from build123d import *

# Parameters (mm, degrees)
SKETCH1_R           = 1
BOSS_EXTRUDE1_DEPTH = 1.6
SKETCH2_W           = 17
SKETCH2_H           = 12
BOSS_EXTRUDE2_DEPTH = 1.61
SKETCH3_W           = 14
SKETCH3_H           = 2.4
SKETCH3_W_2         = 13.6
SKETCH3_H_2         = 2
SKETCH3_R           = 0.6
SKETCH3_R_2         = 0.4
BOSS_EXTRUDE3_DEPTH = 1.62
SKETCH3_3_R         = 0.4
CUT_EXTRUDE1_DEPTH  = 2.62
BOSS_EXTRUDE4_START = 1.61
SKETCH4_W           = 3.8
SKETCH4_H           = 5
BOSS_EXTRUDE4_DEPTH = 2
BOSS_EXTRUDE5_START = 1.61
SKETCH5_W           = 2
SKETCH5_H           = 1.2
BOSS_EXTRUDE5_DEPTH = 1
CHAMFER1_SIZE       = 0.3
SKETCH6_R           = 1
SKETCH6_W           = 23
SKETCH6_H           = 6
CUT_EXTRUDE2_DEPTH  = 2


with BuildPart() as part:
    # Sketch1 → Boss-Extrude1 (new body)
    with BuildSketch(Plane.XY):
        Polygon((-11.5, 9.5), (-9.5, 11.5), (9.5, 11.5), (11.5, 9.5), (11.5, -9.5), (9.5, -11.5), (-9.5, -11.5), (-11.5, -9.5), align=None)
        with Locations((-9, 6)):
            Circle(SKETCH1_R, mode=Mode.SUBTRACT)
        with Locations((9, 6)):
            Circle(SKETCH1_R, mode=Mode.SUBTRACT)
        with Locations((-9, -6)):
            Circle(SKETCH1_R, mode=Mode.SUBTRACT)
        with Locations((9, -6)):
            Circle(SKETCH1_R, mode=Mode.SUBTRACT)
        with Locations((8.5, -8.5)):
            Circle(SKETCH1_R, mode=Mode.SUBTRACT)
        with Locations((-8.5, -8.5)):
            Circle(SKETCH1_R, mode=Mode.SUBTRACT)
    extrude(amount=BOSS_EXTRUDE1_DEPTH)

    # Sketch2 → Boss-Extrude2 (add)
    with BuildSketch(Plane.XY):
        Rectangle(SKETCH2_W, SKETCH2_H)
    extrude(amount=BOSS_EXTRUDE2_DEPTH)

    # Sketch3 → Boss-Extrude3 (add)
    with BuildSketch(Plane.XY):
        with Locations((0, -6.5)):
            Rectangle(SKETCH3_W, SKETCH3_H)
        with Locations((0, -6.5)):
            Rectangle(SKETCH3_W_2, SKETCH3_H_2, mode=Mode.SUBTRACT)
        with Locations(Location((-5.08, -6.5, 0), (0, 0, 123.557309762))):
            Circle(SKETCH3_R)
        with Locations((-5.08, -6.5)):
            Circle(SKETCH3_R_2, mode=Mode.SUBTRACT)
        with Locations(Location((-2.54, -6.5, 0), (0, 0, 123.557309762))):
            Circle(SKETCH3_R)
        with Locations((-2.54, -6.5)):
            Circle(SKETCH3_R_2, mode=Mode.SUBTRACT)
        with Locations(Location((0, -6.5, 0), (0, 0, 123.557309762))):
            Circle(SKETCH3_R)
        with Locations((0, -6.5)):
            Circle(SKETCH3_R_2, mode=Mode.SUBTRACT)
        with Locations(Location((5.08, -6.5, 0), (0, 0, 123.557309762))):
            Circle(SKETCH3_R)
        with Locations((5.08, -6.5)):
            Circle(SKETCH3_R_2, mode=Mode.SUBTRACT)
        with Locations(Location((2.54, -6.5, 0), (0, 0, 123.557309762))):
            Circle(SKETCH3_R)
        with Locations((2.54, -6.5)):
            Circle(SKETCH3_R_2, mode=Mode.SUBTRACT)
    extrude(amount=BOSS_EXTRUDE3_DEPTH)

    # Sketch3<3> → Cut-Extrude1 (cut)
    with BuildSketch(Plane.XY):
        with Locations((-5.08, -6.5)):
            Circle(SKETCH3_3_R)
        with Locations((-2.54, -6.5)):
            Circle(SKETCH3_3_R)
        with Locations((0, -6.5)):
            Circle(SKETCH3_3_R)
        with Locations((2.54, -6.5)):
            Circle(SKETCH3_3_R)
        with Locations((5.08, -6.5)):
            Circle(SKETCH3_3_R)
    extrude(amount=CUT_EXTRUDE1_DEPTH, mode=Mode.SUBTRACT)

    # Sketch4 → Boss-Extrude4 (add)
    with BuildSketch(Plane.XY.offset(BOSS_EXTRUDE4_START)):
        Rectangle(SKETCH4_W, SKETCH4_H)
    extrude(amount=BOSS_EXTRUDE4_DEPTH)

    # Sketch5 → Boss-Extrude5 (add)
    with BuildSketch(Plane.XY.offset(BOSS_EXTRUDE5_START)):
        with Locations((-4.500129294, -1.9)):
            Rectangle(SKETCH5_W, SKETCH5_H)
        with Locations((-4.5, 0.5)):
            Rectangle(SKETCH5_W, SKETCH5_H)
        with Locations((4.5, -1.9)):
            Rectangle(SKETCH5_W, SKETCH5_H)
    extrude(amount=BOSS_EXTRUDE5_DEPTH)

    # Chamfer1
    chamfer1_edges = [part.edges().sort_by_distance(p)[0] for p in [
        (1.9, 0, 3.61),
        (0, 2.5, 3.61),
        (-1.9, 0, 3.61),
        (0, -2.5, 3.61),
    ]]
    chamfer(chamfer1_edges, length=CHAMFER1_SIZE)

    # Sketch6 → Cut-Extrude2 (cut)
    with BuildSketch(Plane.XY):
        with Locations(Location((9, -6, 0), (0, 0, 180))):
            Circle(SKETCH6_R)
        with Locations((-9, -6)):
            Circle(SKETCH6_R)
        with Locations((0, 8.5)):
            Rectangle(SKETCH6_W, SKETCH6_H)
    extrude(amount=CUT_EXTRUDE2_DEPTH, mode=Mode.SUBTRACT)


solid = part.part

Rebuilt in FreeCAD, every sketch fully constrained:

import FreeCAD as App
import Part
import Sketcher
from FreeCAD import Vector
Q = App.Units.Quantity


def edges_at(feature, points):
    """Names of the edges that pass closest to the given points."""
    edges = feature.Shape.Edges
    near = lambda p: min(range(len(edges)), key=lambda i: edges[i].distToShape(Part.Vertex(*p))[0])
    return sorted({f"Edge{near(p) + 1}" for p in points})

doc = App.newDocument("Part")
body = doc.addObject("PartDesign::Body", "Body")

# Sketch on XY plane
sketch1 = body.newObject("Sketcher::SketchObject", "Sketch")
sketch1.AttachmentSupport = (doc.getObject("XY_Plane"), [""])
sketch1.MapMode = "FlatFace"
sketch1.addGeometry(Part.LineSegment(Vector(-9.5, 11.5, 0), Vector(-11.5, 9.5, 0)), False)
sketch1.addGeometry(Part.LineSegment(Vector(-11.5, 9.5, 0), Vector(-11.5, -9.5, 0)), False)
sketch1.addGeometry(Part.LineSegment(Vector(-11.5, -9.5, 0), Vector(-9.5, -11.5, 0)), False)
sketch1.addGeometry(Part.LineSegment(Vector(-9.5, -11.5, 0), Vector(9.5, -11.5, 0)), False)
sketch1.addGeometry(Part.LineSegment(Vector(9.5, -11.5, 0), Vector(11.5, -9.5, 0)), False)
sketch1.addGeometry(Part.LineSegment(Vector(11.5, -9.5, 0), Vector(11.5, 9.5, 0)), False)
sketch1.addGeometry(Part.LineSegment(Vector(11.5, 9.5, 0), Vector(9.5, 11.5, 0)), False)
sketch1.addGeometry(Part.LineSegment(Vector(9.5, 11.5, 0), Vector(-9.5, 11.5, 0)), False)
sketch1.addGeometry(Part.Circle(Vector(8.5, -8.5, 0), Vector(0, 0, 1), 1), False)
sketch1.addGeometry(Part.Circle(Vector(9, -6, 0), Vector(0, 0, 1), 1), False)
sketch1.addGeometry(Part.Circle(Vector(-8.5, -8.5, 0), Vector(0, 0, 1), 1), False)
sketch1.addGeometry(Part.Circle(Vector(-9, -6, 0), Vector(0, 0, 1), 1), False)
sketch1.addGeometry(Part.Circle(Vector(9, 6, 0), Vector(0, 0, 1), 1), False)
sketch1.addGeometry(Part.Circle(Vector(-9, 6, 0), Vector(0, 0, 1), 1), False)
sketch1.addConstraint(Sketcher.Constraint("Coincident", 0, 2, 1, 1))
sketch1.addConstraint(Sketcher.Constraint("Coincident", 1, 2, 2, 1))
sketch1.addConstraint(Sketcher.Constraint("Coincident", 2, 2, 3, 1))
sketch1.addConstraint(Sketcher.Constraint("Coincident", 3, 2, 4, 1))
sketch1.addConstraint(Sketcher.Constraint("Coincident", 4, 2, 5, 1))
sketch1.addConstraint(Sketcher.Constraint("Coincident", 5, 2, 6, 1))
sketch1.addConstraint(Sketcher.Constraint("Coincident", 6, 2, 7, 1))
sketch1.addConstraint(Sketcher.Constraint("Coincident", 7, 2, 0, 1))
sketch1.addConstraint(Sketcher.Constraint("Vertical", 1))
sketch1.addConstraint(Sketcher.Constraint("Horizontal", 3))
sketch1.addConstraint(Sketcher.Constraint("Vertical", 5))
sketch1.addConstraint(Sketcher.Constraint("Horizontal", 7))
sketch1.addConstraint(Sketcher.Constraint("Equal", 8, 9))
sketch1.addConstraint(Sketcher.Constraint("Equal", 9, 10))
sketch1.addConstraint(Sketcher.Constraint("Equal", 10, 11))
sketch1.addConstraint(Sketcher.Constraint("Equal", 11, 12))
sketch1.addConstraint(Sketcher.Constraint("Equal", 12, 13))
sketch1.addConstraint(Sketcher.Constraint("Symmetric", 11, 3, 12, 3, -1, 1))
sketch1.addConstraint(Sketcher.Constraint("Symmetric", 9, 3, 13, 3, -1, 1))
sketch1.addConstraint(Sketcher.Constraint("Symmetric", 0, 2, 4, 2, -1, 1))
sketch1.addConstraint(Sketcher.Constraint("Symmetric", 2, 2, 6, 2, -1, 1))
sketch1.addConstraint(Sketcher.Constraint("Symmetric", 8, 3, 10, 3, -2))
sketch1.addConstraint(Sketcher.Constraint("Symmetric", 9, 3, 11, 3, -2))
sketch1.addConstraint(Sketcher.Constraint("Perpendicular", 0, 2))
sketch1.addConstraint(Sketcher.Constraint("Perpendicular", 2, 4))
sketch1.addConstraint(Sketcher.Constraint("Perpendicular", 4, 6))
sketch1.addConstraint(Sketcher.Constraint("Horizontal", 1, 2, 4, 2))
sketch1.addConstraint(Sketcher.Constraint("Vertical", 3, 2, 6, 2))
sketch1.addConstraint(Sketcher.Constraint("Equal", 7, 1))
sketch1.addConstraint(Sketcher.Constraint("Diameter", 8, Q("2 mm")))
sketch1.addConstraint(Sketcher.Constraint("DistanceX", 3, 1, 3, 2, Q("19 mm")))
sketch1.addConstraint(Sketcher.Constraint("DistanceX", -1, 1, 9, 3, Q("9 mm")))
sketch1.addConstraint(Sketcher.Constraint("DistanceY", 9, 3, -1, 1, Q("6 mm")))
sketch1.addConstraint(Sketcher.Constraint("DistanceX", 10, 3, 8, 3, Q("17 mm")))
sketch1.addConstraint(Sketcher.Constraint("DistanceX", 0, 2, 10, 3, Q("3 mm")))
sketch1.addConstraint(Sketcher.Constraint("DistanceY", 10, 3, 0, 2, Q("18 mm")))
pad1 = body.newObject("PartDesign::Pad", "Pad")
pad1.Profile = sketch1
pad1.Length = 1.6

# Sketch on XY plane
sketch2 = body.newObject("Sketcher::SketchObject", "Sketch001")
sketch2.AttachmentSupport = (doc.getObject("XY_Plane"), [""])
sketch2.MapMode = "FlatFace"
sketch2.addGeometry(Part.LineSegment(Vector(-8, 6, 0), Vector(-8, -6, 0)), False)
sketch2.addGeometry(Part.LineSegment(Vector(-8, -6, 0), Vector(8, -6, 0)), False)
sketch2.addGeometry(Part.LineSegment(Vector(8, -6, 0), Vector(8, 6, 0)), False)
sketch2.addGeometry(Part.LineSegment(Vector(8, 6, 0), Vector(-8, 6, 0)), False)
sketch2.addConstraint(Sketcher.Constraint("Coincident", 0, 2, 1, 1))
sketch2.addConstraint(Sketcher.Constraint("Coincident", 1, 2, 2, 1))
sketch2.addConstraint(Sketcher.Constraint("Coincident", 2, 2, 3, 1))
sketch2.addConstraint(Sketcher.Constraint("Coincident", 3, 2, 0, 1))
sketch2.addConstraint(Sketcher.Constraint("Vertical", 0))
sketch2.addConstraint(Sketcher.Constraint("Horizontal", 1))
sketch2.addConstraint(Sketcher.Constraint("Vertical", 2))
sketch2.addConstraint(Sketcher.Constraint("Horizontal", 3))
sketch2.addConstraint(Sketcher.Constraint("Symmetric", 0, 2, 2, 2, -1, 1))
sketch2.addConstraint(Sketcher.Constraint("DistanceX", 1, 1, 1, 2, Q("17 mm")))
sketch2.addConstraint(Sketcher.Constraint("DistanceY", 0, 2, 0, 1, Q("12 mm")))
pad2 = body.newObject("PartDesign::Pad", "Pad001")
pad2.Profile = sketch2
pad2.Length = 1.61

# Sketch on XY plane
sketch3 = body.newObject("Sketcher::SketchObject", "Sketch002")
sketch3.AttachmentSupport = (doc.getObject("XY_Plane"), [""])
sketch3.MapMode = "FlatFace"
sketch3.addGeometry(Part.LineSegment(Vector(-7, -5.3, 0), Vector(-7, -7.7, 0)), False)
sketch3.addGeometry(Part.LineSegment(Vector(-7, -7.7, 0), Vector(7, -7.7, 0)), False)
sketch3.addGeometry(Part.LineSegment(Vector(7, -7.7, 0), Vector(7, -5.3, 0)), False)
sketch3.addGeometry(Part.LineSegment(Vector(7, -5.3, 0), Vector(-7, -5.3, 0)), False)
sketch3.addGeometry(Part.LineSegment(Vector(6.8, -7.5, 0), Vector(-6.8, -7.5, 0)), False)
sketch3.addGeometry(Part.LineSegment(Vector(-6.8, -7.5, 0), Vector(-6.8, -5.5, 0)), False)
sketch3.addGeometry(Part.LineSegment(Vector(-6.8, -5.5, 0), Vector(6.8, -5.5, 0)), False)
sketch3.addGeometry(Part.LineSegment(Vector(6.8, -5.5, 0), Vector(6.8, -7.5, 0)), False)
sketch3.addGeometry(Part.Circle(Vector(-5.08, -6.5, 0), Vector(0, 0, 1), 0.6), False)
sketch3.addGeometry(Part.Circle(Vector(-5.08, -6.5, 0), Vector(0, 0, 1), 0.4), False)
sketch3.addGeometry(Part.Circle(Vector(-2.54, -6.5, 0), Vector(0, 0, 1), 0.6), False)
sketch3.addGeometry(Part.Circle(Vector(-2.54, -6.5, 0), Vector(0, 0, 1), 0.4), False)
sketch3.addGeometry(Part.Circle(Vector(0, -6.5, 0), Vector(0, 0, 1), 0.6), False)
sketch3.addGeometry(Part.Circle(Vector(0, -6.5, 0), Vector(0, 0, 1), 0.4), False)
sketch3.addGeometry(Part.Circle(Vector(5.08, -6.5, 0), Vector(0, 0, 1), 0.6), False)
sketch3.addGeometry(Part.Circle(Vector(5.08, -6.5, 0), Vector(0, 0, 1), 0.4), False)
sketch3.addGeometry(Part.Circle(Vector(2.54, -6.5, 0), Vector(0, 0, 1), 0.6), False)
sketch3.addGeometry(Part.Circle(Vector(2.54, -6.5, 0), Vector(0, 0, 1), 0.4), False)
sketch3.addConstraint(Sketcher.Constraint("Coincident", 0, 2, 1, 1))
sketch3.addConstraint(Sketcher.Constraint("Coincident", 1, 2, 2, 1))
sketch3.addConstraint(Sketcher.Constraint("Coincident", 2, 2, 3, 1))
sketch3.addConstraint(Sketcher.Constraint("Coincident", 3, 2, 0, 1))
sketch3.addConstraint(Sketcher.Constraint("Coincident", 4, 2, 5, 1))
sketch3.addConstraint(Sketcher.Constraint("Coincident", 5, 2, 6, 1))
sketch3.addConstraint(Sketcher.Constraint("Coincident", 6, 2, 7, 1))
sketch3.addConstraint(Sketcher.Constraint("Coincident", 7, 2, 4, 1))
sketch3.addConstraint(Sketcher.Constraint("Vertical", 0))
sketch3.addConstraint(Sketcher.Constraint("Horizontal", 1))
sketch3.addConstraint(Sketcher.Constraint("Vertical", 2))
sketch3.addConstraint(Sketcher.Constraint("Horizontal", 3))
sketch3.addConstraint(Sketcher.Constraint("Horizontal", 4))
sketch3.addConstraint(Sketcher.Constraint("Vertical", 5))
sketch3.addConstraint(Sketcher.Constraint("Horizontal", 6))
sketch3.addConstraint(Sketcher.Constraint("Vertical", 7))
sketch3.addConstraint(Sketcher.Constraint("Coincident", 9, 3, 8, 3))
sketch3.addConstraint(Sketcher.Constraint("Coincident", 11, 3, 10, 3))
sketch3.addConstraint(Sketcher.Constraint("Coincident", 13, 3, 12, 3))
sketch3.addConstraint(Sketcher.Constraint("Coincident", 15, 3, 14, 3))
sketch3.addConstraint(Sketcher.Constraint("Coincident", 17, 3, 16, 3))
sketch3.addConstraint(Sketcher.Constraint("Equal", 8, 10))
sketch3.addConstraint(Sketcher.Constraint("Equal", 9, 11))
sketch3.addConstraint(Sketcher.Constraint("Equal", 10, 12))
sketch3.addConstraint(Sketcher.Constraint("Equal", 11, 13))
sketch3.addConstraint(Sketcher.Constraint("Equal", 12, 14))
sketch3.addConstraint(Sketcher.Constraint("Equal", 13, 15))
sketch3.addConstraint(Sketcher.Constraint("Equal", 14, 16))
sketch3.addConstraint(Sketcher.Constraint("Equal", 15, 17))
sketch3.addConstraint(Sketcher.Constraint("Symmetric", 8, 3, 14, 3, -2))
sketch3.addConstraint(Sketcher.Constraint("Symmetric", 10, 3, 16, 3, -2))
sketch3.addConstraint(Sketcher.Constraint("PointOnObject", 12, 3, -2))
sketch3.addConstraint(Sketcher.Constraint("Horizontal", 9, 3, 10, 3))
sketch3.addConstraint(Sketcher.Constraint("Horizontal", 11, 3, 12, 3))
sketch3.addConstraint(Sketcher.Constraint("Diameter", 8, Q("1.2 mm")))
sketch3.addConstraint(Sketcher.Constraint("Diameter", 9, Q("0.8 mm")))
sketch3.addConstraint(Sketcher.Constraint("DistanceX", 1, 1, 1, 2, Q("14 mm")))
sketch3.addConstraint(Sketcher.Constraint("DistanceY", 5, 1, 5, 2, Q("2 mm")))
sketch3.addConstraint(Sketcher.Constraint("DistanceX", 4, 2, 4, 1, Q("13.6 mm")))
sketch3.addConstraint(Sketcher.Constraint("DistanceY", 0, 2, 0, 1, Q("2.4 mm")))
sketch3.addConstraint(Sketcher.Constraint("DistanceX", 0, 2, -1, 1, Q("7 mm")))
sketch3.addConstraint(Sketcher.Constraint("DistanceY", 4, 2, 8, 3, Q("1 mm")))
sketch3.addConstraint(Sketcher.Constraint("DistanceY", 8, 3, -1, 1, Q("6.5 mm")))
sketch3.addConstraint(Sketcher.Constraint("DistanceY", 0, 2, -1, 1, Q("7.7 mm")))
sketch3.addConstraint(Sketcher.Constraint("DistanceX", 4, 2, -1, 1, Q("6.8 mm")))
sketch3.addConstraint(Sketcher.Constraint("DistanceX", 8, 3, -1, 1, Q("5.08 mm")))
sketch3.addConstraint(Sketcher.Constraint("DistanceX", 10, 3, -1, 1, Q("2.54 mm")))
pad3 = body.newObject("PartDesign::Pad", "Pad002")
pad3.Profile = sketch3
pad3.Length = 1.62

# Sketch on XY plane
sketch4 = body.newObject("Sketcher::SketchObject", "Sketch003")
sketch4.AttachmentSupport = (doc.getObject("XY_Plane"), [""])
sketch4.MapMode = "FlatFace"
sketch4.addGeometry(Part.Circle(Vector(-5.08, -6.5, 0), Vector(0, 0, 1), 0.4), False)
sketch4.addGeometry(Part.Circle(Vector(-2.54, -6.5, 0), Vector(0, 0, 1), 0.4), False)
sketch4.addGeometry(Part.Circle(Vector(0, -6.5, 0), Vector(0, 0, 1), 0.4), False)
sketch4.addGeometry(Part.Circle(Vector(2.54, -6.5, 0), Vector(0, 0, 1), 0.4), False)
sketch4.addGeometry(Part.Circle(Vector(5.08, -6.5, 0), Vector(0, 0, 1), 0.4), False)
sketch4.addConstraint(Sketcher.Constraint("Equal", 0, 1))
sketch4.addConstraint(Sketcher.Constraint("Equal", 1, 2))
sketch4.addConstraint(Sketcher.Constraint("Equal", 2, 3))
sketch4.addConstraint(Sketcher.Constraint("Equal", 3, 4))
sketch4.addConstraint(Sketcher.Constraint("Symmetric", 1, 3, 3, 3, -2))
sketch4.addConstraint(Sketcher.Constraint("Symmetric", 0, 3, 4, 3, -2))
sketch4.addConstraint(Sketcher.Constraint("PointOnObject", 2, 3, -2))
sketch4.addConstraint(Sketcher.Constraint("Horizontal", 0, 3, 1, 3))
sketch4.addConstraint(Sketcher.Constraint("Horizontal", 1, 3, 2, 3))
sketch4.addConstraint(Sketcher.Constraint("Diameter", 0, Q("0.8 mm")))
sketch4.addConstraint(Sketcher.Constraint("DistanceY", 0, 3, -1, 1, Q("6.5 mm")))
sketch4.addConstraint(Sketcher.Constraint("DistanceX", 0, 3, -1, 1, Q("5.08 mm")))
sketch4.addConstraint(Sketcher.Constraint("DistanceX", 1, 3, -1, 1, Q("2.54 mm")))
pocket1 = body.newObject("PartDesign::Pocket", "Pocket")
pocket1.Profile = sketch4
pocket1.Length = 2.62
pocket1.Reversed = True

# Sketch on XY plane
sketch5 = body.newObject("Sketcher::SketchObject", "Sketch004")
sketch5.AttachmentSupport = (doc.getObject("XY_Plane"), [""])
sketch5.MapMode = "FlatFace"
sketch5.AttachmentOffset = App.Placement(Vector(0, 0, 1.61), App.Rotation())
sketch5.addGeometry(Part.LineSegment(Vector(-1.9, 2.5, 0), Vector(-1.9, -2.5, 0)), False)
sketch5.addGeometry(Part.LineSegment(Vector(-1.9, -2.5, 0), Vector(1.9, -2.5, 0)), False)
sketch5.addGeometry(Part.LineSegment(Vector(1.9, -2.5, 0), Vector(1.9, 2.5, 0)), False)
sketch5.addGeometry(Part.LineSegment(Vector(1.9, 2.5, 0), Vector(-1.9, 2.5, 0)), False)
sketch5.addConstraint(Sketcher.Constraint("Coincident", 0, 2, 1, 1))
sketch5.addConstraint(Sketcher.Constraint("Coincident", 1, 2, 2, 1))
sketch5.addConstraint(Sketcher.Constraint("Coincident", 2, 2, 3, 1))
sketch5.addConstraint(Sketcher.Constraint("Coincident", 3, 2, 0, 1))
sketch5.addConstraint(Sketcher.Constraint("Vertical", 0))
sketch5.addConstraint(Sketcher.Constraint("Horizontal", 1))
sketch5.addConstraint(Sketcher.Constraint("Vertical", 2))
sketch5.addConstraint(Sketcher.Constraint("Horizontal", 3))
sketch5.addConstraint(Sketcher.Constraint("Symmetric", 0, 2, 2, 2, -1, 1))
sketch5.addConstraint(Sketcher.Constraint("DistanceY", 0, 2, 0, 1, Q("5 mm")))
sketch5.addConstraint(Sketcher.Constraint("DistanceX", 1, 1, 1, 2, Q("3.8 mm")))
pad4 = body.newObject("PartDesign::Pad", "Pad003")
pad4.Profile = sketch5
pad4.Length = 2

# Sketch on XY plane
sketch6 = body.newObject("Sketcher::SketchObject", "Sketch005")
sketch6.AttachmentSupport = (doc.getObject("XY_Plane"), [""])
sketch6.MapMode = "FlatFace"
sketch6.AttachmentOffset = App.Placement(Vector(0, 0, 1.61), App.Rotation())
sketch6.addGeometry(Part.LineSegment(Vector(-5.5, -1.3, 0), Vector(-5.5, -2.5, 0)), False)
sketch6.addGeometry(Part.LineSegment(Vector(-5.5, -2.5, 0), Vector(-3.5, -2.5, 0)), False)
sketch6.addGeometry(Part.LineSegment(Vector(-3.5, -2.5, 0), Vector(-3.5, -1.3, 0)), False)
sketch6.addGeometry(Part.LineSegment(Vector(-3.5, -1.3, 0), Vector(-5.5, -1.3, 0)), False)
sketch6.addGeometry(Part.LineSegment(Vector(-5.5, 1.1, 0), Vector(-5.5, -0.1, 0)), False)
sketch6.addGeometry(Part.LineSegment(Vector(-5.5, -0.1, 0), Vector(-3.5, -0.1, 0)), False)
sketch6.addGeometry(Part.LineSegment(Vector(-3.5, -0.1, 0), Vector(-3.5, 1.1, 0)), False)
sketch6.addGeometry(Part.LineSegment(Vector(-3.5, 1.1, 0), Vector(-5.5, 1.1, 0)), False)
sketch6.addGeometry(Part.LineSegment(Vector(3.5, -1.3, 0), Vector(3.5, -2.5, 0)), False)
sketch6.addGeometry(Part.LineSegment(Vector(3.5, -2.5, 0), Vector(5.5, -2.5, 0)), False)
sketch6.addGeometry(Part.LineSegment(Vector(5.5, -2.5, 0), Vector(5.5, -1.3, 0)), False)
sketch6.addGeometry(Part.LineSegment(Vector(5.5, -1.3, 0), Vector(3.5, -1.3, 0)), False)
sketch6.addConstraint(Sketcher.Constraint("Coincident", 0, 2, 1, 1))
sketch6.addConstraint(Sketcher.Constraint("Coincident", 1, 2, 2, 1))
sketch6.addConstraint(Sketcher.Constraint("Coincident", 2, 2, 3, 1))
sketch6.addConstraint(Sketcher.Constraint("Coincident", 3, 2, 0, 1))
sketch6.addConstraint(Sketcher.Constraint("Coincident", 4, 2, 5, 1))
sketch6.addConstraint(Sketcher.Constraint("Coincident", 5, 2, 6, 1))
sketch6.addConstraint(Sketcher.Constraint("Coincident", 6, 2, 7, 1))
sketch6.addConstraint(Sketcher.Constraint("Coincident", 7, 2, 4, 1))
sketch6.addConstraint(Sketcher.Constraint("Coincident", 8, 2, 9, 1))
sketch6.addConstraint(Sketcher.Constraint("Coincident", 9, 2, 10, 1))
sketch6.addConstraint(Sketcher.Constraint("Coincident", 10, 2, 11, 1))
sketch6.addConstraint(Sketcher.Constraint("Coincident", 11, 2, 8, 1))
sketch6.addConstraint(Sketcher.Constraint("Vertical", 0))
sketch6.addConstraint(Sketcher.Constraint("Horizontal", 1))
sketch6.addConstraint(Sketcher.Constraint("Vertical", 2))
sketch6.addConstraint(Sketcher.Constraint("Horizontal", 3))
sketch6.addConstraint(Sketcher.Constraint("Vertical", 4))
sketch6.addConstraint(Sketcher.Constraint("Horizontal", 5))
sketch6.addConstraint(Sketcher.Constraint("Vertical", 6))
sketch6.addConstraint(Sketcher.Constraint("Horizontal", 7))
sketch6.addConstraint(Sketcher.Constraint("Vertical", 8))
sketch6.addConstraint(Sketcher.Constraint("Horizontal", 9))
sketch6.addConstraint(Sketcher.Constraint("Vertical", 10))
sketch6.addConstraint(Sketcher.Constraint("Horizontal", 11))
sketch6.addConstraint(Sketcher.Constraint("Horizontal", 1, 2, 8, 2))
sketch6.addConstraint(Sketcher.Constraint("Horizontal", 3, 2, 10, 2))
sketch6.addConstraint(Sketcher.Constraint("Equal", 3, 5))
sketch6.addConstraint(Sketcher.Constraint("Equal", 7, 9))
sketch6.addConstraint(Sketcher.Constraint("Equal", 2, 4))
sketch6.addConstraint(Sketcher.Constraint("DistanceX", 1, 1, 1, 2, Q("2 mm")))
sketch6.addConstraint(Sketcher.Constraint("DistanceY", 0, 2, 0, 1, Q("1.2 mm")))
sketch6.addConstraint(Sketcher.Constraint("DistanceX", 5, 2, 8, 2, Q("7 mm")))
sketch6.addConstraint(Sketcher.Constraint("DistanceY", 0, 2, -1, 1, Q("2.5 mm")))
sketch6.addConstraint(Sketcher.Constraint("DistanceX", 4, 2, -1, 1, Q("5.5 mm")))
sketch6.addConstraint(Sketcher.Constraint("DistanceY", 4, 2, -1, 1, Q("0.1 mm")))
sketch6.addConstraint(Sketcher.Constraint("DistanceX", 0, 2, -1, 1, Q("5.500129 mm")))
pad5 = body.newObject("PartDesign::Pad", "Pad004")
pad5.Profile = sketch6
pad5.Length = 1
doc.recompute()

chamfer = body.newObject("PartDesign::Chamfer", "Chamfer")
chamfer.Base = (pad5, edges_at(pad5, [
    (1.9, 0, 3.61),
    (0, 2.5, 3.61),
    (-1.9, 0, 3.61),
    (0, -2.5, 3.61),
]))
chamfer.Size = 0.3

# Sketch on XY plane
sketch7 = body.newObject("Sketcher::SketchObject", "Sketch006")
sketch7.AttachmentSupport = (doc.getObject("XY_Plane"), [""])
sketch7.MapMode = "FlatFace"
sketch7.addGeometry(Part.Circle(Vector(9, -6, 0), Vector(0, 0, 1), 1), False)
sketch7.addGeometry(Part.Circle(Vector(-9, -6, 0), Vector(0, 0, 1), 1), False)
sketch7.addGeometry(Part.LineSegment(Vector(-11.5, 11.5, 0), Vector(-11.5, 5.5, 0)), False)
sketch7.addGeometry(Part.LineSegment(Vector(-11.5, 5.5, 0), Vector(11.5, 5.5, 0)), False)
sketch7.addGeometry(Part.LineSegment(Vector(11.5, 5.5, 0), Vector(11.5, 11.5, 0)), False)
sketch7.addGeometry(Part.LineSegment(Vector(11.5, 11.5, 0), Vector(-11.5, 11.5, 0)), False)
sketch7.addConstraint(Sketcher.Constraint("Coincident", 2, 2, 3, 1))
sketch7.addConstraint(Sketcher.Constraint("Coincident", 3, 2, 4, 1))
sketch7.addConstraint(Sketcher.Constraint("Coincident", 4, 2, 5, 1))
sketch7.addConstraint(Sketcher.Constraint("Coincident", 5, 2, 2, 1))
sketch7.addConstraint(Sketcher.Constraint("Vertical", 2))
sketch7.addConstraint(Sketcher.Constraint("Horizontal", 3))
sketch7.addConstraint(Sketcher.Constraint("Vertical", 4))
sketch7.addConstraint(Sketcher.Constraint("Horizontal", 5))
sketch7.addConstraint(Sketcher.Constraint("Equal", 0, 1))
sketch7.addConstraint(Sketcher.Constraint("Symmetric", 0, 3, 1, 3, -2))
sketch7.addConstraint(Sketcher.Constraint("Diameter", 0, Q("2 mm")))
sketch7.addConstraint(Sketcher.Constraint("DistanceX", 3, 1, 3, 2, Q("23 mm")))
sketch7.addConstraint(Sketcher.Constraint("DistanceY", 2, 2, 2, 1, Q("6 mm")))
sketch7.addConstraint(Sketcher.Constraint("DistanceX", -1, 1, 0, 3, Q("9 mm")))
sketch7.addConstraint(Sketcher.Constraint("DistanceY", 0, 3, -1, 1, Q("6 mm")))
sketch7.addConstraint(Sketcher.Constraint("DistanceX", 2, 2, -1, 1, Q("11.5 mm")))
sketch7.addConstraint(Sketcher.Constraint("DistanceY", -1, 1, 2, 2, Q("5.5 mm")))
pocket2 = body.newObject("PartDesign::Pocket", "Pocket001")
pocket2.Profile = sketch7
pocket2.Length = 2
pocket2.Reversed = True

doc.recompute()
